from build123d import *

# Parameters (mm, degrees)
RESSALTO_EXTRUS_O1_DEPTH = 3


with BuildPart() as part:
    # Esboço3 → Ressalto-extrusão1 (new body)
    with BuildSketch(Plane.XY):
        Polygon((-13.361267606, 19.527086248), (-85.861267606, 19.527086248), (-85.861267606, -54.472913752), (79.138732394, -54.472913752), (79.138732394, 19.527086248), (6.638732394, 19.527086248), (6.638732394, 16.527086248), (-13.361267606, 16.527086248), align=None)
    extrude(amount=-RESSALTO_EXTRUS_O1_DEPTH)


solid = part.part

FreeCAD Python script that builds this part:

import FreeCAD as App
import Part
import Sketcher
from FreeCAD import Vector
Q = App.Units.Quantity


def add_polygon(sketch, points):
    """Adds a closed chain of lines whose ends are joined by coincident constraints."""
    first, n = sketch.GeometryCount, len(points)
    for a, b in zip(points, points[1:] + points[:1]):
        sketch.addGeometry(Part.LineSegment(App.Vector(*a, 0), App.Vector(*b, 0)), False)
    for i in range(n):
        sketch.addConstraint(Sketcher.Constraint("Coincident", first + i, 2, first + (i + 1) % n, 1))

doc = App.newDocument("Part")
body = doc.addObject("PartDesign::Body", "Body")

sketch1 = body.newObject("Sketcher::SketchObject", "Sketch")
sketch1.AttachmentSupport = (doc.getObject("XY_Plane"), [""])
sketch1.MapMode = "FlatFace"
add_polygon(sketch1, [(-13.4, 19.5), (-85.9, 19.5), (-85.9, -54.5), (79.1, -54.5), (79.1, 19.5), (6.6, 19.5), (6.6, 16.5), (-13.4, 16.5)])
sketch1.addConstraint(Sketcher.Constraint("Horizontal", 0))
sketch1.addConstraint(Sketcher.Constraint("Vertical", 1))
sketch1.addConstraint(Sketcher.Constraint("Horizontal", 2))
sketch1.addConstraint(Sketcher.Constraint("Vertical", 3))
sketch1.addConstraint(Sketcher.Constraint("Horizontal", 4))
sketch1.addConstraint(Sketcher.Constraint("Vertical", 5))
sketch1.addConstraint(Sketcher.Constraint("Horizontal", 6))
sketch1.addConstraint(Sketcher.Constraint("Vertical", 7))
sketch1.addConstraint(Sketcher.Constraint("Horizontal", 0, 2, 3, 2))
sketch1.addConstraint(Sketcher.Constraint("Equal", 0, 4))
sketch1.addConstraint(Sketcher.Constraint("DistanceX", 2, 1, 2, 2, Q("165 mm")))
sketch1.addConstraint(Sketcher.Constraint("DistanceX", 6, 2, 6, 1, Q("20 mm")))
sketch1.addConstraint(Sketcher.Constraint("DistanceY", 1, 2, 1, 1, Q("74 mm")))
sketch1.addConstraint(Sketcher.Constraint("DistanceY", 5, 2, 5, 1, Q("3 mm")))
sketch1.addConstraint(Sketcher.Constraint("DistanceX", 0, 2, -1, 1, Q("85.861268 mm")))
sketch1.addConstraint(Sketcher.Constraint("DistanceY", -1, 1, 0, 2, Q("19.527086 mm")))
pad1 = body.newObject("PartDesign::Pad", "Pad")
pad1.Profile = sketch1
pad1.Length = 3
pad1.Reversed = True

doc.recompute()
